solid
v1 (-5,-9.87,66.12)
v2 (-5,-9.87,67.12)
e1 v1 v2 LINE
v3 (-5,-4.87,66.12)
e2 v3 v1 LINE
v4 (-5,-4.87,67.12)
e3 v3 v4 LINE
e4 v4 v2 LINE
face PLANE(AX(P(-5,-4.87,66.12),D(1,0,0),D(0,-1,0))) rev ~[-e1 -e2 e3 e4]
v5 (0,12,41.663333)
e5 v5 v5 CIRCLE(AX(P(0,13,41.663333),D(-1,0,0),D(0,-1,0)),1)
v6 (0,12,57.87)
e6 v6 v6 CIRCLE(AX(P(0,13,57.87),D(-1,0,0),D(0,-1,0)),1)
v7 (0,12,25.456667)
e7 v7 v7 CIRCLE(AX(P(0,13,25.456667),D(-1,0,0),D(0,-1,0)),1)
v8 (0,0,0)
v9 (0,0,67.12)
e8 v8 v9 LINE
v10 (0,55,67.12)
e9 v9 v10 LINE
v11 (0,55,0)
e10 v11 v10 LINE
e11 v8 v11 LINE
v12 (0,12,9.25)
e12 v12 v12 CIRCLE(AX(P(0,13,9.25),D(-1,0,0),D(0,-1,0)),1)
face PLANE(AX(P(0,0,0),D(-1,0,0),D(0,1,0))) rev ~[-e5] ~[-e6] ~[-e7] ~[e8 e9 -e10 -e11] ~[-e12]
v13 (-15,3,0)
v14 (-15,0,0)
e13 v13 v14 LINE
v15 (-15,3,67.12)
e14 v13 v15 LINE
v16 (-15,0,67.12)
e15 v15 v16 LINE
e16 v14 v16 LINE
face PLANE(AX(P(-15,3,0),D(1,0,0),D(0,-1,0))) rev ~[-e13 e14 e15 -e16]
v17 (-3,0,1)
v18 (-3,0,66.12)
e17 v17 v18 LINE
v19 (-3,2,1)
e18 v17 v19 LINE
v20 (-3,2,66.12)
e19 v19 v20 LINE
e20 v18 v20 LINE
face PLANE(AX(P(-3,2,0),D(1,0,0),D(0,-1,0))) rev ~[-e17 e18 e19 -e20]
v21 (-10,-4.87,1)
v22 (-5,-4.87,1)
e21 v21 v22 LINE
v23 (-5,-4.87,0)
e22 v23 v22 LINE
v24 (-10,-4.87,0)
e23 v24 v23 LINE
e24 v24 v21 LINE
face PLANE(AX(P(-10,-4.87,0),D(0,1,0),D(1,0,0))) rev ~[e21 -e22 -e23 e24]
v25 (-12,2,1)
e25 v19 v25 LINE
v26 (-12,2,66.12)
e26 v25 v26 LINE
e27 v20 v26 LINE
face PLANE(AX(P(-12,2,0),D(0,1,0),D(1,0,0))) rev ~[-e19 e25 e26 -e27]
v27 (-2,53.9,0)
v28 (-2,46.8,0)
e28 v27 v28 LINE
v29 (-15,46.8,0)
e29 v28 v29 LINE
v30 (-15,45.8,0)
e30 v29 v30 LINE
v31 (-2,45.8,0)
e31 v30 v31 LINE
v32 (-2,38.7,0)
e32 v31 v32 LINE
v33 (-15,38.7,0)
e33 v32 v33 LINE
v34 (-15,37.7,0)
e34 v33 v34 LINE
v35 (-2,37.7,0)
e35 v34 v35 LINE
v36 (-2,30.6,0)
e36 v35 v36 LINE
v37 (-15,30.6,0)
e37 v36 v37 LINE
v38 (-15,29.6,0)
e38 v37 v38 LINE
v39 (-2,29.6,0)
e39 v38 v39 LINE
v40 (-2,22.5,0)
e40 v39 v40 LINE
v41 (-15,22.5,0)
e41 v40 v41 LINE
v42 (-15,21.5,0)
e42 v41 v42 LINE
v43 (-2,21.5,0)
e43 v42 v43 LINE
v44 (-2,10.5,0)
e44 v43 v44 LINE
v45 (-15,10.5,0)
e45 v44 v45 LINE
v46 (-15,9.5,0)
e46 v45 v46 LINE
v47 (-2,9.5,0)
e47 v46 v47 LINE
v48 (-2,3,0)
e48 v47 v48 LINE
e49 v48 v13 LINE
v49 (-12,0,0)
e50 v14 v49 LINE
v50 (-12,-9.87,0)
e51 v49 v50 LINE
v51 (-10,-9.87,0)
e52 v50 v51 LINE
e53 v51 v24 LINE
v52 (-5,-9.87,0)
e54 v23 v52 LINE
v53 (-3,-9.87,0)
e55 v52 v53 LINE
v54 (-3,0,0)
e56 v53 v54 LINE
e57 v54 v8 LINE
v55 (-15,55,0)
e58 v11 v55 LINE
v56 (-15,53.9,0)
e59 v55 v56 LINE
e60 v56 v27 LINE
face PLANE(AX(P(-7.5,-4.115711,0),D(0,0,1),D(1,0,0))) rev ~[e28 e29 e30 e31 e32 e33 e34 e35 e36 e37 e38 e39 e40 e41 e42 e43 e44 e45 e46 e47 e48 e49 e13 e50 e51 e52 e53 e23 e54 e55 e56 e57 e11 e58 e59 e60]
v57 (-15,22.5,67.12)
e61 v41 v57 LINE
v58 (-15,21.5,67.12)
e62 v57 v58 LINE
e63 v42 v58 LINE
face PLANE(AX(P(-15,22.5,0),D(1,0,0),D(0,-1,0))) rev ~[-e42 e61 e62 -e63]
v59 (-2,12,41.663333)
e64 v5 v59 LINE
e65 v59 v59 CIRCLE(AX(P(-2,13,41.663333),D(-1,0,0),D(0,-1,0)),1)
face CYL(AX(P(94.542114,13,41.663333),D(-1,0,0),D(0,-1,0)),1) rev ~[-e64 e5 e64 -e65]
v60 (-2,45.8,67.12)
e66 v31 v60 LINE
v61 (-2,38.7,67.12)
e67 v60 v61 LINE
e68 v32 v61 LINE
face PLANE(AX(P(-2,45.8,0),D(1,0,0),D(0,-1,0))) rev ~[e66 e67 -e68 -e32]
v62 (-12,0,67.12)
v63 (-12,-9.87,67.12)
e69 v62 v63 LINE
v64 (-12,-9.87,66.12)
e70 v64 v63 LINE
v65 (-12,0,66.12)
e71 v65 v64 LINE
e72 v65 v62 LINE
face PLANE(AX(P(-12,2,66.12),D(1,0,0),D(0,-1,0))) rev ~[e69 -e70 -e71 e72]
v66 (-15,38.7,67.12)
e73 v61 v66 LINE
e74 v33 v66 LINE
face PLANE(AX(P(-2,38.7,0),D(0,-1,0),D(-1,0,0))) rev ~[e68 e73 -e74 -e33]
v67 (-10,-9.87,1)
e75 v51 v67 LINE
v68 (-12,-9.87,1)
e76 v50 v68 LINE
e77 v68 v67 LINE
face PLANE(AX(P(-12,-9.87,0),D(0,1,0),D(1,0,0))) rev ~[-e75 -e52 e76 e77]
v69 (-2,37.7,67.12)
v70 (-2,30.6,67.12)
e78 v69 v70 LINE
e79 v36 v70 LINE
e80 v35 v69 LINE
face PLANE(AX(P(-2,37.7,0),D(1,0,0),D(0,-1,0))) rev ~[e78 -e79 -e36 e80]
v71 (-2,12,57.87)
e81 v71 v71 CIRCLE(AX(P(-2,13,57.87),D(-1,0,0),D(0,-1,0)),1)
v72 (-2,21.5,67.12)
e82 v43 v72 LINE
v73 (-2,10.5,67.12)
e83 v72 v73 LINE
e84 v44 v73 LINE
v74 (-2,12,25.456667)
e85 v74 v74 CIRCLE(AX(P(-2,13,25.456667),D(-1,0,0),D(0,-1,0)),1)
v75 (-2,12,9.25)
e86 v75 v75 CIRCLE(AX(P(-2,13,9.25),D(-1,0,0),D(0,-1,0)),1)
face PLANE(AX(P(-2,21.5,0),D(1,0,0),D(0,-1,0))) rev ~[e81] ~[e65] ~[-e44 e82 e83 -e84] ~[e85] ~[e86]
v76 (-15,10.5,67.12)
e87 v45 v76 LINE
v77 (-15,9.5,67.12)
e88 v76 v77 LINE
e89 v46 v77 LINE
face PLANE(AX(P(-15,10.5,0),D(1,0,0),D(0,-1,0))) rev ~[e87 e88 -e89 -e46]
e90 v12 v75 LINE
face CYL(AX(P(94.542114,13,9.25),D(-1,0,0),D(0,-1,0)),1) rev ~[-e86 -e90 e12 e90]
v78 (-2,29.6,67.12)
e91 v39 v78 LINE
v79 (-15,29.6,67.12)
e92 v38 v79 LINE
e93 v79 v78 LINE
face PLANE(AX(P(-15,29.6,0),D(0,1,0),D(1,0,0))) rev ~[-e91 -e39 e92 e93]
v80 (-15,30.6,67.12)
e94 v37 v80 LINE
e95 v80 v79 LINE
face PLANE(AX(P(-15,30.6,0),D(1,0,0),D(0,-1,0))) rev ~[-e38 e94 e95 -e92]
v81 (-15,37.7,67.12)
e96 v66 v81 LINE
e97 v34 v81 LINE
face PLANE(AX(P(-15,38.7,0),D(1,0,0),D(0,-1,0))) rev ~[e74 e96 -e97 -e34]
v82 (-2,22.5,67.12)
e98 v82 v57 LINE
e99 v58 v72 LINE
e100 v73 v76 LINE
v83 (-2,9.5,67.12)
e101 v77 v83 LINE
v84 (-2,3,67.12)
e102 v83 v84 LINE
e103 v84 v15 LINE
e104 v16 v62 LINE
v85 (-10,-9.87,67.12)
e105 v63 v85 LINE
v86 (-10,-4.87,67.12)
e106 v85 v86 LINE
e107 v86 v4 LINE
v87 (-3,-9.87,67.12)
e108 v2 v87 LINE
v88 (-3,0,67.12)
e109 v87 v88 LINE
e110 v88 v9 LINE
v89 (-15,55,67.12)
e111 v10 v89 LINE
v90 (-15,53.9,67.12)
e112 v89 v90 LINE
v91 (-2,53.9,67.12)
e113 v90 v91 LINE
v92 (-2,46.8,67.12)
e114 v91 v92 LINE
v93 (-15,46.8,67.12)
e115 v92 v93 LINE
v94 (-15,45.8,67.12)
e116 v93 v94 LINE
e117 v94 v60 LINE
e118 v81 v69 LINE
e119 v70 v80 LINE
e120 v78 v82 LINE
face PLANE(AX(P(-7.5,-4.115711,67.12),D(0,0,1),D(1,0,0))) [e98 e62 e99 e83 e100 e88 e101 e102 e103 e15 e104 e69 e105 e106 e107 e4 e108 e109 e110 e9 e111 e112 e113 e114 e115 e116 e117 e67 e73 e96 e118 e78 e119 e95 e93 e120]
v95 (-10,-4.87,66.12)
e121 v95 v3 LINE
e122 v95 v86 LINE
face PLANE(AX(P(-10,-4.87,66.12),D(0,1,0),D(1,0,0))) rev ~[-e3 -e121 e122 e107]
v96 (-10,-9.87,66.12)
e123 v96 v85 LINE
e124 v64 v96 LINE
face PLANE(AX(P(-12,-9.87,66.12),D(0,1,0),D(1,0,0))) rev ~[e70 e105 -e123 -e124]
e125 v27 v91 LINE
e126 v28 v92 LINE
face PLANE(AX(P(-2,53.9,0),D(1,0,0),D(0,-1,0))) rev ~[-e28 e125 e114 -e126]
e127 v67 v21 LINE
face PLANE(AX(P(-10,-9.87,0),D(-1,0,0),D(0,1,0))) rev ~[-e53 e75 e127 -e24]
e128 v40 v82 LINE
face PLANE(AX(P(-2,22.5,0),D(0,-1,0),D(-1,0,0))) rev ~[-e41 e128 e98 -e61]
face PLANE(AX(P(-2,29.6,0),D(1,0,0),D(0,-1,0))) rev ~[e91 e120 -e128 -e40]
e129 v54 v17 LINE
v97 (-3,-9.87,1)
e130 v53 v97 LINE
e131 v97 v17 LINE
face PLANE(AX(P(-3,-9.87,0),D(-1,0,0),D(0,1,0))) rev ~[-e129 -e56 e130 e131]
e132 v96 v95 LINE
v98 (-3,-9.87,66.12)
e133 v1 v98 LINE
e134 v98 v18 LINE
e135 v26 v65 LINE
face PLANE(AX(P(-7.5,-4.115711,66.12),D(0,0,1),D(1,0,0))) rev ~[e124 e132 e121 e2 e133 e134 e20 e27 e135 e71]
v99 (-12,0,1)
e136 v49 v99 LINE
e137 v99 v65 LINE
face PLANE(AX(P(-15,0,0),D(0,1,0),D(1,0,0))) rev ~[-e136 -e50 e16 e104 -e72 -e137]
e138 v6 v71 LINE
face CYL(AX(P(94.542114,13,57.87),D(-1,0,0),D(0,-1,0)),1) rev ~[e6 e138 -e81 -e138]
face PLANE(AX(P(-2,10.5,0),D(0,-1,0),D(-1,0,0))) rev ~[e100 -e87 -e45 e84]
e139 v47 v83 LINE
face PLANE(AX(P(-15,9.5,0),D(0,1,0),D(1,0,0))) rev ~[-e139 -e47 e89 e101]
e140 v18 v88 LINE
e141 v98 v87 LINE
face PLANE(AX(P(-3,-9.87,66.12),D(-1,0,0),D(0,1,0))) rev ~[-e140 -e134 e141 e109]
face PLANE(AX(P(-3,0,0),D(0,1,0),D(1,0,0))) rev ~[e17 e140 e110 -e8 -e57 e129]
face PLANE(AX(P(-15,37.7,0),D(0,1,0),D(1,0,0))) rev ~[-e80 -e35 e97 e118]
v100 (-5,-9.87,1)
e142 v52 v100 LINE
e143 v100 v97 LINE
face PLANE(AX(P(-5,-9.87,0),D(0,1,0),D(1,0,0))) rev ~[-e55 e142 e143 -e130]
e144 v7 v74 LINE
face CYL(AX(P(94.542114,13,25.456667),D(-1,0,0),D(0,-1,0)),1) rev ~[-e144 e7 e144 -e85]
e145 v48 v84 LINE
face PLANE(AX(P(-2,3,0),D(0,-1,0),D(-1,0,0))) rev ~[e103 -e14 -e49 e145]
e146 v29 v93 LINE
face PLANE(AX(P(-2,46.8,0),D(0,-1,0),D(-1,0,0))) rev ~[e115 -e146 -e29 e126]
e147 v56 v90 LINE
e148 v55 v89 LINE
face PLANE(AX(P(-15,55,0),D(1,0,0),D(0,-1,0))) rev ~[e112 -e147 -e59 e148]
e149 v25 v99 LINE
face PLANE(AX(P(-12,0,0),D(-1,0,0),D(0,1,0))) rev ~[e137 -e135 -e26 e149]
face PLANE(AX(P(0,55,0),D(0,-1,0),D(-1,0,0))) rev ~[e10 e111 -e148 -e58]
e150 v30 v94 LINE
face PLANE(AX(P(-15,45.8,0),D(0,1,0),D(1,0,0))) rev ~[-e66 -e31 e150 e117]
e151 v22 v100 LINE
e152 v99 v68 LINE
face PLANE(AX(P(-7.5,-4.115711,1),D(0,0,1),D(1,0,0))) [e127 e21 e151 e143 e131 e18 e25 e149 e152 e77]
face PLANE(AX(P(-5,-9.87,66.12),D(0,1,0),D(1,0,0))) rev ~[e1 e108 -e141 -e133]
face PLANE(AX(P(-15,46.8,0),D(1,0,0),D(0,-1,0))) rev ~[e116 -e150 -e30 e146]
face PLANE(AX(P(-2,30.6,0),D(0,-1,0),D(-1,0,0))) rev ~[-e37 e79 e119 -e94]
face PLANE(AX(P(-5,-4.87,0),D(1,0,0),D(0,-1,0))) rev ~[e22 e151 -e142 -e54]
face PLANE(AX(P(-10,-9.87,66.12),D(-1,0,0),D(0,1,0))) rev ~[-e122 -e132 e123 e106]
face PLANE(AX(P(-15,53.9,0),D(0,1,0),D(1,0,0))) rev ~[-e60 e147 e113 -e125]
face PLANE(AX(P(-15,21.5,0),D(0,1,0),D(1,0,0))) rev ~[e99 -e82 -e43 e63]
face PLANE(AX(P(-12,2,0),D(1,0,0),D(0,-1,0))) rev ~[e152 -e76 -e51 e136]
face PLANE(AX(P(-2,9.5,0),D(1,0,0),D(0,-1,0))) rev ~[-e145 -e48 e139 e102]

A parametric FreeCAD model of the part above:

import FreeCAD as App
import Part
import Sketcher
Q = App.Units.Quantity

doc = App.newDocument("Part")
body = doc.addObject("PartDesign::Body", "Body")

sketch1 = body.newObject("Sketcher::SketchObject", "Sketch")
sketch1.AttachmentSupport = (doc.getObject("XY_Plane"), [""])
sketch1.MapMode = "FlatFace"
sketch1.addGeometry([
    Part.LineSegment(App.Vector(0, 0, 0), App.Vector(0, 55, 0)),
    Part.LineSegment(App.Vector(0, 55, 0), App.Vector(-15, 55, 0)),
    Part.LineSegment(App.Vector(-15, 55, 0), App.Vector(-15, 53.9, 0)),
    Part.LineSegment(App.Vector(-15, 53.9, 0), App.Vector(-2, 53.9, 0)),
    Part.LineSegment(App.Vector(-2, 53.9, 0), App.Vector(-2, 46.8, 0)),
    Part.LineSegment(App.Vector(-2, 46.8, 0), App.Vector(-15, 46.8, 0)),
    Part.LineSegment(App.Vector(-15, 46.8, 0), App.Vector(-15, 45.8, 0)),
    Part.LineSegment(App.Vector(-15, 45.8, 0), App.Vector(-2, 45.8, 0)),
    Part.LineSegment(App.Vector(-2, 45.8, 0), App.Vector(-2, 38.7, 0)),
    Part.LineSegment(App.Vector(-2, 38.7, 0), App.Vector(-15, 38.7, 0)),
    Part.LineSegment(App.Vector(-15, 38.7, 0), App.Vector(-15, 37.7, 0)),
    Part.LineSegment(App.Vector(-15, 37.7, 0), App.Vector(-2, 37.7, 0)),
    Part.LineSegment(App.Vector(-2, 37.7, 0), App.Vector(-2, 30.6, 0)),
    Part.LineSegment(App.Vector(-2, 30.6, 0), App.Vector(-15, 30.6, 0)),
    Part.LineSegment(App.Vector(-15, 30.6, 0), App.Vector(-15, 29.6, 0)),
    Part.LineSegment(App.Vector(-15, 29.6, 0), App.Vector(-2, 29.6, 0)),
    Part.LineSegment(App.Vector(-2, 29.6, 0), App.Vector(-2, 22.5, 0)),
    Part.LineSegment(App.Vector(-2, 22.5, 0), App.Vector(-15, 22.5, 0)),
    Part.LineSegment(App.Vector(-15, 22.5, 0), App.Vector(-15, 21.5, 0)),
    Part.LineSegment(App.Vector(-15, 21.5, 0), App.Vector(-2, 21.5, 0)),
    Part.LineSegment(App.Vector(-2, 21.5, 0), App.Vector(-2, 10.5, 0)),
    Part.LineSegment(App.Vector(-2, 10.5, 0), App.Vector(-15, 10.5, 0)),
    Part.LineSegment(App.Vector(-15, 10.5, 0), App.Vector(-15, 9.5, 0)),
    Part.LineSegment(App.Vector(-15, 9.5, 0), App.Vector(-2, 9.5, 0)),
    Part.LineSegment(App.Vector(-2, 9.5, 0), App.Vector(-2, 3, 0)),
    Part.LineSegment(App.Vector(-2, 3, 0), App.Vector(-15, 3, 0)),
    Part.LineSegment(App.Vector(-15, 3, 0), App.Vector(-15, 0, 0)),
    Part.LineSegment(App.Vector(-15, 0, 0), App.Vector(-12, 0, 0)),
    Part.LineSegment(App.Vector(-12, 0, 0), App.Vector(-12, 2, 0)),
    Part.LineSegment(App.Vector(-12, 2, 0), App.Vector(-3, 2, 0)),
    Part.LineSegment(App.Vector(-3, 2, 0), App.Vector(-3, 0, 0)),
    Part.LineSegment(App.Vector(-3, 0, 0), App.Vector(0, 0, 0)),
], False)
sketch1.addConstraint([
    Sketcher.Constraint("Coincident", 0, 2, 1, 1),
    Sketcher.Constraint("Coincident", 1, 2, 2, 1),
    Sketcher.Constraint("Coincident", 2, 2, 3, 1),
    Sketcher.Constraint("Coincident", 3, 2, 4, 1),
    Sketcher.Constraint("Coincident", 4, 2, 5, 1),
    Sketcher.Constraint("Coincident", 5, 2, 6, 1),
    Sketcher.Constraint("Coincident", 6, 2, 7, 1),
    Sketcher.Constraint("Coincident", 7, 2, 8, 1),
    Sketcher.Constraint("Coincident", 8, 2, 9, 1),
    Sketcher.Constraint("Coincident", 9, 2, 10, 1),
    Sketcher.Constraint("Coincident", 10, 2, 11, 1),
    Sketcher.Constraint("Coincident", 11, 2, 12, 1),
    Sketcher.Constraint("Coincident", 12, 2, 13, 1),
    Sketcher.Constraint("Coincident", 13, 2, 14, 1),
    Sketcher.Constraint("Coincident", 14, 2, 15, 1),
    Sketcher.Constraint("Coincident", 15, 2, 16, 1),
    Sketcher.Constraint("Coincident", 16, 2, 17, 1),
    Sketcher.Constraint("Coincident", 17, 2, 18, 1),
    Sketcher.Constraint("Coincident", 18, 2, 19, 1),
    Sketcher.Constraint("Coincident", 19, 2, 20, 1),
    Sketcher.Constraint("Coincident", 20, 2, 21, 1),
    Sketcher.Constraint("Coincident", 21, 2, 22, 1),
    Sketcher.Constraint("Coincident", 22, 2, 23, 1),
    Sketcher.Constraint("Coincident", 23, 2, 24, 1),
    Sketcher.Constraint("Coincident", 24, 2, 25, 1),
    Sketcher.Constraint("Coincident", 25, 2, 26, 1),
    Sketcher.Constraint("Coincident", 26, 2, 27, 1),
    Sketcher.Constraint("Coincident", 27, 2, 28, 1),
    Sketcher.Constraint("Coincident", 28, 2, 29, 1),
    Sketcher.Constraint("Coincident", 29, 2, 30, 1),
    Sketcher.Constraint("Coincident", 30, 2, 31, 1),
    Sketcher.Constraint("Coincident", 31, 2, 0, 1),
    Sketcher.Constraint("Vertical", 0),
    Sketcher.Constraint("Horizontal", 1),
    Sketcher.Constraint("Vertical", 2),
    Sketcher.Constraint("Horizontal", 3),
    Sketcher.Constraint("Vertical", 4),
    Sketcher.Constraint("Horizontal", 5),
    Sketcher.Constraint("Vertical", 6),
    Sketcher.Constraint("Horizontal", 7),
    Sketcher.Constraint("Vertical", 8),
    Sketcher.Constraint("Horizontal", 9),
    Sketcher.Constraint("Vertical", 10),
    Sketcher.Constraint("Horizontal", 11),
    Sketcher.Constraint("Vertical", 12),
    Sketcher.Constraint("Horizontal", 13),
    Sketcher.Constraint("Vertical", 14),
    Sketcher.Constraint("Horizontal", 15),
    Sketcher.Constraint("Vertical", 16),
    Sketcher.Constraint("Horizontal", 17),
    Sketcher.Constraint("Vertical", 18),
    Sketcher.Constraint("Horizontal", 19),
    Sketcher.Constraint("Vertical", 20),
    Sketcher.Constraint("Horizontal", 21),
    Sketcher.Constraint("Vertical", 22),
    Sketcher.Constraint("Horizontal", 23),
    Sketcher.Constraint("Vertical", 24),
    Sketcher.Constraint("Horizontal", 25),
    Sketcher.Constraint("Vertical", 26),
    Sketcher.Constraint("Horizontal", 27),
    Sketcher.Constraint("Vertical", 28),
    Sketcher.Constraint("Horizontal", 29),
    Sketcher.Constraint("Vertical", 30),
    Sketcher.Constraint("Horizontal", 31),
    Sketcher.Constraint("Coincident", 31, 2, -1, 1),
    Sketcher.Constraint("PointOnObject", 26, 2, -1),
    Sketcher.Constraint("Vertical", 2, 2, 5, 2),
    Sketcher.Constraint("Vertical", 4, 2, 7, 2),
    Sketcher.Constraint("Vertical", 6, 2, 9, 2),
    Sketcher.Constraint("Vertical", 8, 2, 11, 2),
    Sketcher.Constraint("Vertical", 10, 2, 13, 2),
    Sketcher.Constraint("Vertical", 12, 2, 15, 2),
    Sketcher.Constraint("Vertical", 14, 2, 17, 2),
    Sketcher.Constraint("Vertical", 16, 2, 19, 2),
    Sketcher.Constraint("Vertical", 18, 2, 21, 2),
    Sketcher.Constraint("Vertical", 20, 2, 23, 2),
    Sketcher.Constraint("Vertical", 22, 2, 25, 2),
    Sketcher.Constraint("Equal", 27, 31),
    Sketcher.Constraint("Equal", 4, 8),
    Sketcher.Constraint("Equal", 6, 10),
    Sketcher.Constraint("Equal", 8, 12),
    Sketcher.Constraint("Equal", 10, 14),
    Sketcher.Constraint("Equal", 12, 16),
    Sketcher.Constraint("Equal", 14, 18),
    Sketcher.Constraint("Equal", 18, 22),
    Sketcher.Constraint("Equal", 31, 26),
    Sketcher.Constraint("DistanceX", 1, 2, 1, 1, Q("15 mm")),
    Sketcher.Constraint("DistanceX", 3, 1, 3, 2, Q("13 mm")),
    Sketcher.Constraint("DistanceX", 27, 1, 27, 2, Q("3 mm")),
    Sketcher.Constraint("DistanceY", 0, 1, 0, 2, Q("55 mm")),
    Sketcher.Constraint("DistanceY", 6, 2, 6, 1, Q("1 mm")),
    Sketcher.Constraint("DistanceY", 20, 2, 20, 1, Q("11 mm")),
    Sketcher.Constraint("DistanceY", 28, 1, 28, 2, Q("2 mm")),
    Sketcher.Constraint("DistanceY", 2, 2, 2, 1, Q("1.1 mm")),
    Sketcher.Constraint("DistanceY", 4, 2, 4, 1, Q("7.1 mm")),
])
pad1 = body.newObject("PartDesign::Pad", "Pad")
pad1.Profile = sketch1
pad1.Length = 67.12

sketch2 = body.newObject("Sketcher::SketchObject", "Sketch001")
sketch2.AttachmentSupport = (doc.getObject("XY_Plane"), [""])
sketch2.MapMode = "FlatFace"
sketch2.addGeometry([
    Part.LineSegment(App.Vector(-3, -9.87, 0), App.Vector(-3, 2, 0)),
    Part.LineSegment(App.Vector(-3, 2, 0), App.Vector(-12, 2, 0)),
    Part.LineSegment(App.Vector(-12, 2, 0), App.Vector(-12, -9.87, 0)),
    Part.LineSegment(App.Vector(-12, -9.87, 0), App.Vector(-10, -9.87, 0)),
    Part.LineSegment(App.Vector(-10, -9.87, 0), App.Vector(-10, -4.87, 0)),
    Part.LineSegment(App.Vector(-10, -4.87, 0), App.Vector(-5, -4.87, 0)),
    Part.LineSegment(App.Vector(-5, -4.87, 0), App.Vector(-5, -9.87, 0)),
    Part.LineSegment(App.Vector(-5, -9.87, 0), App.Vector(-3, -9.87, 0)),
], False)
sketch2.addConstraint([
    Sketcher.Constraint("Coincident", 0, 2, 1, 1),
    Sketcher.Constraint("Coincident", 1, 2, 2, 1),
    Sketcher.Constraint("Coincident", 2, 2, 3, 1),
    Sketcher.Constraint("Coincident", 3, 2, 4, 1),
    Sketcher.Constraint("Coincident", 4, 2, 5, 1),
    Sketcher.Constraint("Coincident", 5, 2, 6, 1),
    Sketcher.Constraint("Coincident", 6, 2, 7, 1),
    Sketcher.Constraint("Coincident", 7, 2, 0, 1),
    Sketcher.Constraint("Vertical", 0),
    Sketcher.Constraint("Horizontal", 1),
    Sketcher.Constraint("Vertical", 2),
    Sketcher.Constraint("Horizontal", 3),
    Sketcher.Constraint("Vertical", 4),
    Sketcher.Constraint("Horizontal", 5),
    Sketcher.Constraint("Vertical", 6),
    Sketcher.Constraint("Horizontal", 7),
    Sketcher.Constraint("Horizontal", 3, 2, 6, 2),
    Sketcher.Constraint("Equal", 3, 7),
    Sketcher.Constraint("Equal", 5, 4),
    Sketcher.Constraint("DistanceX", 1, 2, 1, 1, Q("9 mm")),
    Sketcher.Constraint("DistanceX", 3, 1, 3, 2, Q("2 mm")),
    Sketcher.Constraint("DistanceX", 0, 2, -1, 1, Q("3 mm")),
    Sketcher.Constraint("DistanceY", -1, 1, 0, 2, Q("2 mm")),
    Sketcher.Constraint("DistanceY", 0, 1, 0, 2, Q("11.87 mm")),
])
pad2 = body.newObject("PartDesign::Pad", "Pad001")
pad2.Profile = sketch2
pad2.Length = 1

sketch3 = body.newObject("Sketcher::SketchObject", "Sketch002")
sketch3.AttachmentSupport = (doc.getObject("XY_Plane"), [""])
sketch3.MapMode = "FlatFace"
sketch3.AttachmentOffset = App.Placement(App.Vector(0, 0, 66.12), App.Rotation())
sketch3.addGeometry([
    Part.LineSegment(App.Vector(-3, -9.87, 0), App.Vector(-3, 2, 0)),
    Part.LineSegment(App.Vector(-3, 2, 0), App.Vector(-12, 2, 0)),
    Part.LineSegment(App.Vector(-12, 2, 0), App.Vector(-12, -9.87, 0)),
    Part.LineSegment(App.Vector(-12, -9.87, 0), App.Vector(-10, -9.87, 0)),
    Part.LineSegment(App.Vector(-10, -9.87, 0), App.Vector(-10, -4.87, 0)),
    Part.LineSegment(App.Vector(-10, -4.87, 0), App.Vector(-5, -4.87, 0)),
    Part.LineSegment(App.Vector(-5, -4.87, 0), App.Vector(-5, -9.87, 0)),
    Part.LineSegment(App.Vector(-5, -9.87, 0), App.Vector(-3, -9.87, 0)),
], False)
sketch3.addConstraint([
    Sketcher.Constraint("Coincident", 0, 2, 1, 1),
    Sketcher.Constraint("Coincident", 1, 2, 2, 1),
    Sketcher.Constraint("Coincident", 2, 2, 3, 1),
    Sketcher.Constraint("Coincident", 3, 2, 4, 1),
    Sketcher.Constraint("Coincident", 4, 2, 5, 1),
    Sketcher.Constraint("Coincident", 5, 2, 6, 1),
    Sketcher.Constraint("Coincident", 6, 2, 7, 1),
    Sketcher.Constraint("Coincident", 7, 2, 0, 1),
    Sketcher.Constraint("Vertical", 0),
    Sketcher.Constraint("Horizontal", 1),
    Sketcher.Constraint("Vertical", 2),
    Sketcher.Constraint("Horizontal", 3),
    Sketcher.Constraint("Vertical", 4),
    Sketcher.Constraint("Horizontal", 5),
    Sketcher.Constraint("Vertical", 6),
    Sketcher.Constraint("Horizontal", 7),
    Sketcher.Constraint("Horizontal", 3, 2, 6, 2),
    Sketcher.Constraint("Equal", 3, 7),
    Sketcher.Constraint("Equal", 5, 4),
    Sketcher.Constraint("DistanceX", 1, 2, 1, 1, Q("9 mm")),
    Sketcher.Constraint("DistanceX", 3, 1, 3, 2, Q("2 mm")),
    Sketcher.Constraint("DistanceX", 0, 2, -1, 1, Q("3 mm")),
    Sketcher.Constraint("DistanceY", -1, 1, 0, 2, Q("2 mm")),
    Sketcher.Constraint("DistanceY", 0, 1, 0, 2, Q("11.87 mm")),
])
pad3 = body.newObject("PartDesign::Pad", "Pad002")
pad3.Profile = sketch3
pad3.Length = 1

sketch4 = body.newObject("Sketcher::SketchObject", "Sketch003")
sketch4.AttachmentSupport = (doc.getObject("YZ_Plane"), [""])
sketch4.MapMode = "FlatFace"
sketch4.addGeometry([
    Part.Circle(App.Vector(13, 57.87, 0), App.Vector(0, 0, 1), 1),
    Part.Circle(App.Vector(13, 41.663333, 0), App.Vector(0, 0, 1), 1),
    Part.Circle(App.Vector(13, 25.456667, 0), App.Vector(0, 0, 1), 1),
    Part.Circle(App.Vector(13, 9.25, 0), App.Vector(0, 0, 1), 1),
], False)
sketch4.addConstraint([
    Sketcher.Constraint("Equal", 0, 1),
    Sketcher.Constraint("Equal", 1, 2),
    Sketcher.Constraint("Equal", 2, 3),
    Sketcher.Constraint("Vertical", 0, 3, 1, 3),
    Sketcher.Constraint("Vertical", 1, 3, 2, 3),
    Sketcher.Constraint("Vertical", 2, 3, 3, 3),
    Sketcher.Constraint("Diameter", 0, Q("2 mm")),
    Sketcher.Constraint("DistanceX", -1, 1, 0, 3, Q("13 mm")),
    Sketcher.Constraint("DistanceY", -1, 1, 0, 3, Q("57.87 mm")),
    Sketcher.Constraint("DistanceY", -1, 1, 3, 3, Q("9.25 mm")),
    Sketcher.Constraint("DistanceY", -1, 1, 1, 3, Q("41.663333 mm")),
    Sketcher.Constraint("DistanceY", -1, 1, 2, 3, Q("25.456667 mm")),
])
doc.recompute()
hole = body.newObject("PartDesign::Hole", "Hole")
hole.Profile = sketch4
hole.ThreadType = "None"
hole.Diameter = 2
hole.DepthType = "ThroughAll"

doc.recompute()
